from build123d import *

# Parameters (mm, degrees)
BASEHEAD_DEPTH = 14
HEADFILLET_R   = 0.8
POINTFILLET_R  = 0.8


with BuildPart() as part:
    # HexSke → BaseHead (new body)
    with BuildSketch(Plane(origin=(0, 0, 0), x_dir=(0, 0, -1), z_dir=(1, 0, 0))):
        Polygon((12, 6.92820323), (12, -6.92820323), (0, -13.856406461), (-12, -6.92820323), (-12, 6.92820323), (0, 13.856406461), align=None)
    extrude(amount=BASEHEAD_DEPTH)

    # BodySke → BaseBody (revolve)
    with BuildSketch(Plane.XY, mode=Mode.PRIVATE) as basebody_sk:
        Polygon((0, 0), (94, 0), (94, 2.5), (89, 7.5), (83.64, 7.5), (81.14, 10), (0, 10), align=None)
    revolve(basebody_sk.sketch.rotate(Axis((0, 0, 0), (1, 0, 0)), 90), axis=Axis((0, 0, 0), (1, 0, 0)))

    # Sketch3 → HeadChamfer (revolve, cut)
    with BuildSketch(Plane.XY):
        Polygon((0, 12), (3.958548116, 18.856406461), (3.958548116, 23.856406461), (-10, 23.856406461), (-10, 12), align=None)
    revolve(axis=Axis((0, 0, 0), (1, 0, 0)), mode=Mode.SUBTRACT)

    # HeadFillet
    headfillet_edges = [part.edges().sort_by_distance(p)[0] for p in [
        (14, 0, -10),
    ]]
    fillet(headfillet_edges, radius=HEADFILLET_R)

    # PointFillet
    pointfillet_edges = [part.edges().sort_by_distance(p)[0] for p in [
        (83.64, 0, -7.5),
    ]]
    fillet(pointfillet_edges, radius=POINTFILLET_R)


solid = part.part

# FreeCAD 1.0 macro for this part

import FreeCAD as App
import Part
import Sketcher
Q = App.Units.Quantity


def edges_at(feature, points):
    """Names of the edges that pass closest to the given points."""
    edges = feature.Shape.Edges
    near = lambda p: min(range(len(edges)), key=lambda i: edges[i].distToShape(Part.Vertex(*p))[0])
    return sorted({f"Edge{near(p) + 1}" for p in points})

doc = App.newDocument("Part")
body = doc.addObject("PartDesign::Body", "Body")

# Sketch on YZ plane
sketch1 = body.newObject("Sketcher::SketchObject", "Sketch")
sketch1.AttachmentSupport = (doc.getObject("YZ_Plane"), [""])
sketch1.MapMode = "FlatFace"
sketch1.addGeometry([
    Part.LineSegment(App.Vector(-7, -12, 0), App.Vector(7, -12, 0)),  # 0
    Part.LineSegment(App.Vector(7, -12, 0), App.Vector(14, 0, 0)),  # 1
    Part.LineSegment(App.Vector(14, 0, 0), App.Vector(7, 12, 0)),  # 2
    Part.LineSegment(App.Vector(7, 12, 0), App.Vector(-7, 12, 0)),  # 3
    Part.LineSegment(App.Vector(-7, 12, 0), App.Vector(-14, 0, 0)),  # 4
    Part.LineSegment(App.Vector(-14, 0, 0), App.Vector(-7, -12, 0)),  # 5
], False)
sketch1.addConstraint([
    Sketcher.Constraint("Coincident", 0, 2, 1, 1),
    Sketcher.Constraint("Coincident", 1, 2, 2, 1),
    Sketcher.Constraint("Coincident", 2, 2, 3, 1),
    Sketcher.Constraint("Coincident", 3, 2, 4, 1),
    Sketcher.Constraint("Coincident", 4, 2, 5, 1),
    Sketcher.Constraint("Coincident", 5, 2, 0, 1),
    Sketcher.Constraint("Horizontal", 0),
    Sketcher.Constraint("Horizontal", 3),
    Sketcher.Constraint("Symmetric", 0, 2, 3, 2, -1, 1),
    Sketcher.Constraint("Symmetric", 1, 2, 4, 2, -1, 1),
    Sketcher.Constraint("PointOnObject", 1, 2, -1),
    Sketcher.Constraint("Parallel", 2, 5),
    Sketcher.Constraint("Vertical", 0, 2, 2, 2),
    Sketcher.Constraint("Angle", 1, Q("60 deg")),
    Sketcher.Constraint("DistanceY", 0, 2, -1, 1, 12.0),
    Sketcher.Constraint("DistanceX", 0, 1, 0, 2, 13.856406),
])
pad1 = body.newObject("PartDesign::Pad", "Pad")
pad1.Profile = sketch1
pad1.Length = 14

# Sketch on XY plane
sketch2 = body.newObject("Sketcher::SketchObject", "Sketch001")
sketch2.AttachmentSupport = (doc.getObject("XY_Plane"), [""])
sketch2.MapMode = "FlatFace"
sketch2.addGeometry([
    Part.LineSegment(App.Vector(0, 0, 0), App.Vector(94, 0, 0)),  # 0
    Part.LineSegment(App.Vector(94, 0, 0), App.Vector(94, 2.5, 0)),  # 1
    Part.LineSegment(App.Vector(94, 2.5, 0), App.Vector(89, 7.5, 0)),  # 2
    Part.LineSegment(App.Vector(89, 7.5, 0), App.Vector(83.6, 7.5, 0)),  # 3
    Part.LineSegment(App.Vector(83.6, 7.5, 0), App.Vector(81.1, 10, 0)),  # 4
    Part.LineSegment(App.Vector(81.1, 10, 0), App.Vector(0, 10, 0)),  # 5
    Part.LineSegment(App.Vector(0, 10, 0), App.Vector(0, 0, 0)),  # 6
], False)
sketch2.addConstraint([
    Sketcher.Constraint("Coincident", 0, 2, 1, 1),
    Sketcher.Constraint("Coincident", 1, 2, 2, 1),
    Sketcher.Constraint("Coincident", 2, 2, 3, 1),
    Sketcher.Constraint("Coincident", 3, 2, 4, 1),
    Sketcher.Constraint("Coincident", 4, 2, 5, 1),
    Sketcher.Constraint("Coincident", 5, 2, 6, 1),
    Sketcher.Constraint("Coincident", 6, 2, 0, 1),
    Sketcher.Constraint("Horizontal", 0),
    Sketcher.Constraint("Vertical", 1),
    Sketcher.Constraint("Horizontal", 3),
    Sketcher.Constraint("Horizontal", 5),
    Sketcher.Constraint("Vertical", 6),
    Sketcher.Constraint("Coincident", 6, 2, -1, 1),
    Sketcher.Constraint("Parallel", 2, 4),
    Sketcher.Constraint("DistanceX", 0, 1, 0, 2, 94.0),
    Sketcher.Constraint("DistanceY", 6, 2, 6, 1, 10.0),
    Sketcher.Constraint("Angle", 2, Q("135 deg")),
    Sketcher.Constraint("DistanceY", 1, 1, 1, 2, 2.5),
    Sketcher.Constraint("DistanceX", -1, 1, 2, 2, 89.0),
    Sketcher.Constraint("DistanceX", 3, 2, 3, 1, 5.36),
])
revolution = body.newObject("PartDesign::Revolution", "Revolution")
revolution.Profile = sketch2
revolution.ReferenceAxis = (sketch2, ["H_Axis"])
revolution.Angle = 360

# Sketch on XY plane
sketch3 = body.newObject("Sketcher::SketchObject", "Sketch002")
sketch3.AttachmentSupport = (doc.getObject("XY_Plane"), [""])
sketch3.MapMode = "FlatFace"
sketch3.addGeometry([
    Part.LineSegment(App.Vector(0, 12, 0), App.Vector(4, 19, 0)),  # 0
    Part.LineSegment(App.Vector(4, 19, 0), App.Vector(4, 24, 0)),  # 1
    Part.LineSegment(App.Vector(4, 24, 0), App.Vector(-10, 24, 0)),  # 2
    Part.LineSegment(App.Vector(-10, 24, 0), App.Vector(-10, 12, 0)),  # 3
    Part.LineSegment(App.Vector(-10, 12, 0), App.Vector(0, 12, 0)),  # 4
], False)
sketch3.addConstraint([
    Sketcher.Constraint("Coincident", 0, 2, 1, 1),
    Sketcher.Constraint("Coincident", 1, 2, 2, 1),
    Sketcher.Constraint("Coincident", 2, 2, 3, 1),
    Sketcher.Constraint("Coincident", 3, 2, 4, 1),
    Sketcher.Constraint("Coincident", 4, 2, 0, 1),
    Sketcher.Constraint("Vertical", 1),
    Sketcher.Constraint("Horizontal", 2),
    Sketcher.Constraint("Vertical", 3),
    Sketcher.Constraint("Horizontal", 4),
    Sketcher.Constraint("PointOnObject", 4, 2, -2),
    Sketcher.Constraint("DistanceX", 4, 1, 4, 2, 10.0),
    Sketcher.Constraint("DistanceY", 1, 1, 1, 2, 5.0),
    Sketcher.Constraint("Angle", 0, Q("60 deg")),
    Sketcher.Constraint("DistanceY", -1, 1, 3, 2, 12.0),
    Sketcher.Constraint("DistanceX", 2, 2, 2, 1, 13.958548),
])
groove = body.newObject("PartDesign::Groove", "Groove")
groove.Profile = sketch3
groove.ReferenceAxis = (sketch3, ["H_Axis"])
groove.Angle = 360
doc.recompute()

fillet = body.newObject("PartDesign::Fillet", "Fillet")
fillet.Base = (groove, edges_at(groove, [(14, 0, -10)]))
fillet.Radius = 0.8
doc.recompute()

fillet2 = body.newObject("PartDesign::Fillet", "Fillet001")
fillet2.Base = (fillet, edges_at(fillet, [(83.64, 0, -7.5)]))
fillet2.Radius = 0.8

doc.recompute()
